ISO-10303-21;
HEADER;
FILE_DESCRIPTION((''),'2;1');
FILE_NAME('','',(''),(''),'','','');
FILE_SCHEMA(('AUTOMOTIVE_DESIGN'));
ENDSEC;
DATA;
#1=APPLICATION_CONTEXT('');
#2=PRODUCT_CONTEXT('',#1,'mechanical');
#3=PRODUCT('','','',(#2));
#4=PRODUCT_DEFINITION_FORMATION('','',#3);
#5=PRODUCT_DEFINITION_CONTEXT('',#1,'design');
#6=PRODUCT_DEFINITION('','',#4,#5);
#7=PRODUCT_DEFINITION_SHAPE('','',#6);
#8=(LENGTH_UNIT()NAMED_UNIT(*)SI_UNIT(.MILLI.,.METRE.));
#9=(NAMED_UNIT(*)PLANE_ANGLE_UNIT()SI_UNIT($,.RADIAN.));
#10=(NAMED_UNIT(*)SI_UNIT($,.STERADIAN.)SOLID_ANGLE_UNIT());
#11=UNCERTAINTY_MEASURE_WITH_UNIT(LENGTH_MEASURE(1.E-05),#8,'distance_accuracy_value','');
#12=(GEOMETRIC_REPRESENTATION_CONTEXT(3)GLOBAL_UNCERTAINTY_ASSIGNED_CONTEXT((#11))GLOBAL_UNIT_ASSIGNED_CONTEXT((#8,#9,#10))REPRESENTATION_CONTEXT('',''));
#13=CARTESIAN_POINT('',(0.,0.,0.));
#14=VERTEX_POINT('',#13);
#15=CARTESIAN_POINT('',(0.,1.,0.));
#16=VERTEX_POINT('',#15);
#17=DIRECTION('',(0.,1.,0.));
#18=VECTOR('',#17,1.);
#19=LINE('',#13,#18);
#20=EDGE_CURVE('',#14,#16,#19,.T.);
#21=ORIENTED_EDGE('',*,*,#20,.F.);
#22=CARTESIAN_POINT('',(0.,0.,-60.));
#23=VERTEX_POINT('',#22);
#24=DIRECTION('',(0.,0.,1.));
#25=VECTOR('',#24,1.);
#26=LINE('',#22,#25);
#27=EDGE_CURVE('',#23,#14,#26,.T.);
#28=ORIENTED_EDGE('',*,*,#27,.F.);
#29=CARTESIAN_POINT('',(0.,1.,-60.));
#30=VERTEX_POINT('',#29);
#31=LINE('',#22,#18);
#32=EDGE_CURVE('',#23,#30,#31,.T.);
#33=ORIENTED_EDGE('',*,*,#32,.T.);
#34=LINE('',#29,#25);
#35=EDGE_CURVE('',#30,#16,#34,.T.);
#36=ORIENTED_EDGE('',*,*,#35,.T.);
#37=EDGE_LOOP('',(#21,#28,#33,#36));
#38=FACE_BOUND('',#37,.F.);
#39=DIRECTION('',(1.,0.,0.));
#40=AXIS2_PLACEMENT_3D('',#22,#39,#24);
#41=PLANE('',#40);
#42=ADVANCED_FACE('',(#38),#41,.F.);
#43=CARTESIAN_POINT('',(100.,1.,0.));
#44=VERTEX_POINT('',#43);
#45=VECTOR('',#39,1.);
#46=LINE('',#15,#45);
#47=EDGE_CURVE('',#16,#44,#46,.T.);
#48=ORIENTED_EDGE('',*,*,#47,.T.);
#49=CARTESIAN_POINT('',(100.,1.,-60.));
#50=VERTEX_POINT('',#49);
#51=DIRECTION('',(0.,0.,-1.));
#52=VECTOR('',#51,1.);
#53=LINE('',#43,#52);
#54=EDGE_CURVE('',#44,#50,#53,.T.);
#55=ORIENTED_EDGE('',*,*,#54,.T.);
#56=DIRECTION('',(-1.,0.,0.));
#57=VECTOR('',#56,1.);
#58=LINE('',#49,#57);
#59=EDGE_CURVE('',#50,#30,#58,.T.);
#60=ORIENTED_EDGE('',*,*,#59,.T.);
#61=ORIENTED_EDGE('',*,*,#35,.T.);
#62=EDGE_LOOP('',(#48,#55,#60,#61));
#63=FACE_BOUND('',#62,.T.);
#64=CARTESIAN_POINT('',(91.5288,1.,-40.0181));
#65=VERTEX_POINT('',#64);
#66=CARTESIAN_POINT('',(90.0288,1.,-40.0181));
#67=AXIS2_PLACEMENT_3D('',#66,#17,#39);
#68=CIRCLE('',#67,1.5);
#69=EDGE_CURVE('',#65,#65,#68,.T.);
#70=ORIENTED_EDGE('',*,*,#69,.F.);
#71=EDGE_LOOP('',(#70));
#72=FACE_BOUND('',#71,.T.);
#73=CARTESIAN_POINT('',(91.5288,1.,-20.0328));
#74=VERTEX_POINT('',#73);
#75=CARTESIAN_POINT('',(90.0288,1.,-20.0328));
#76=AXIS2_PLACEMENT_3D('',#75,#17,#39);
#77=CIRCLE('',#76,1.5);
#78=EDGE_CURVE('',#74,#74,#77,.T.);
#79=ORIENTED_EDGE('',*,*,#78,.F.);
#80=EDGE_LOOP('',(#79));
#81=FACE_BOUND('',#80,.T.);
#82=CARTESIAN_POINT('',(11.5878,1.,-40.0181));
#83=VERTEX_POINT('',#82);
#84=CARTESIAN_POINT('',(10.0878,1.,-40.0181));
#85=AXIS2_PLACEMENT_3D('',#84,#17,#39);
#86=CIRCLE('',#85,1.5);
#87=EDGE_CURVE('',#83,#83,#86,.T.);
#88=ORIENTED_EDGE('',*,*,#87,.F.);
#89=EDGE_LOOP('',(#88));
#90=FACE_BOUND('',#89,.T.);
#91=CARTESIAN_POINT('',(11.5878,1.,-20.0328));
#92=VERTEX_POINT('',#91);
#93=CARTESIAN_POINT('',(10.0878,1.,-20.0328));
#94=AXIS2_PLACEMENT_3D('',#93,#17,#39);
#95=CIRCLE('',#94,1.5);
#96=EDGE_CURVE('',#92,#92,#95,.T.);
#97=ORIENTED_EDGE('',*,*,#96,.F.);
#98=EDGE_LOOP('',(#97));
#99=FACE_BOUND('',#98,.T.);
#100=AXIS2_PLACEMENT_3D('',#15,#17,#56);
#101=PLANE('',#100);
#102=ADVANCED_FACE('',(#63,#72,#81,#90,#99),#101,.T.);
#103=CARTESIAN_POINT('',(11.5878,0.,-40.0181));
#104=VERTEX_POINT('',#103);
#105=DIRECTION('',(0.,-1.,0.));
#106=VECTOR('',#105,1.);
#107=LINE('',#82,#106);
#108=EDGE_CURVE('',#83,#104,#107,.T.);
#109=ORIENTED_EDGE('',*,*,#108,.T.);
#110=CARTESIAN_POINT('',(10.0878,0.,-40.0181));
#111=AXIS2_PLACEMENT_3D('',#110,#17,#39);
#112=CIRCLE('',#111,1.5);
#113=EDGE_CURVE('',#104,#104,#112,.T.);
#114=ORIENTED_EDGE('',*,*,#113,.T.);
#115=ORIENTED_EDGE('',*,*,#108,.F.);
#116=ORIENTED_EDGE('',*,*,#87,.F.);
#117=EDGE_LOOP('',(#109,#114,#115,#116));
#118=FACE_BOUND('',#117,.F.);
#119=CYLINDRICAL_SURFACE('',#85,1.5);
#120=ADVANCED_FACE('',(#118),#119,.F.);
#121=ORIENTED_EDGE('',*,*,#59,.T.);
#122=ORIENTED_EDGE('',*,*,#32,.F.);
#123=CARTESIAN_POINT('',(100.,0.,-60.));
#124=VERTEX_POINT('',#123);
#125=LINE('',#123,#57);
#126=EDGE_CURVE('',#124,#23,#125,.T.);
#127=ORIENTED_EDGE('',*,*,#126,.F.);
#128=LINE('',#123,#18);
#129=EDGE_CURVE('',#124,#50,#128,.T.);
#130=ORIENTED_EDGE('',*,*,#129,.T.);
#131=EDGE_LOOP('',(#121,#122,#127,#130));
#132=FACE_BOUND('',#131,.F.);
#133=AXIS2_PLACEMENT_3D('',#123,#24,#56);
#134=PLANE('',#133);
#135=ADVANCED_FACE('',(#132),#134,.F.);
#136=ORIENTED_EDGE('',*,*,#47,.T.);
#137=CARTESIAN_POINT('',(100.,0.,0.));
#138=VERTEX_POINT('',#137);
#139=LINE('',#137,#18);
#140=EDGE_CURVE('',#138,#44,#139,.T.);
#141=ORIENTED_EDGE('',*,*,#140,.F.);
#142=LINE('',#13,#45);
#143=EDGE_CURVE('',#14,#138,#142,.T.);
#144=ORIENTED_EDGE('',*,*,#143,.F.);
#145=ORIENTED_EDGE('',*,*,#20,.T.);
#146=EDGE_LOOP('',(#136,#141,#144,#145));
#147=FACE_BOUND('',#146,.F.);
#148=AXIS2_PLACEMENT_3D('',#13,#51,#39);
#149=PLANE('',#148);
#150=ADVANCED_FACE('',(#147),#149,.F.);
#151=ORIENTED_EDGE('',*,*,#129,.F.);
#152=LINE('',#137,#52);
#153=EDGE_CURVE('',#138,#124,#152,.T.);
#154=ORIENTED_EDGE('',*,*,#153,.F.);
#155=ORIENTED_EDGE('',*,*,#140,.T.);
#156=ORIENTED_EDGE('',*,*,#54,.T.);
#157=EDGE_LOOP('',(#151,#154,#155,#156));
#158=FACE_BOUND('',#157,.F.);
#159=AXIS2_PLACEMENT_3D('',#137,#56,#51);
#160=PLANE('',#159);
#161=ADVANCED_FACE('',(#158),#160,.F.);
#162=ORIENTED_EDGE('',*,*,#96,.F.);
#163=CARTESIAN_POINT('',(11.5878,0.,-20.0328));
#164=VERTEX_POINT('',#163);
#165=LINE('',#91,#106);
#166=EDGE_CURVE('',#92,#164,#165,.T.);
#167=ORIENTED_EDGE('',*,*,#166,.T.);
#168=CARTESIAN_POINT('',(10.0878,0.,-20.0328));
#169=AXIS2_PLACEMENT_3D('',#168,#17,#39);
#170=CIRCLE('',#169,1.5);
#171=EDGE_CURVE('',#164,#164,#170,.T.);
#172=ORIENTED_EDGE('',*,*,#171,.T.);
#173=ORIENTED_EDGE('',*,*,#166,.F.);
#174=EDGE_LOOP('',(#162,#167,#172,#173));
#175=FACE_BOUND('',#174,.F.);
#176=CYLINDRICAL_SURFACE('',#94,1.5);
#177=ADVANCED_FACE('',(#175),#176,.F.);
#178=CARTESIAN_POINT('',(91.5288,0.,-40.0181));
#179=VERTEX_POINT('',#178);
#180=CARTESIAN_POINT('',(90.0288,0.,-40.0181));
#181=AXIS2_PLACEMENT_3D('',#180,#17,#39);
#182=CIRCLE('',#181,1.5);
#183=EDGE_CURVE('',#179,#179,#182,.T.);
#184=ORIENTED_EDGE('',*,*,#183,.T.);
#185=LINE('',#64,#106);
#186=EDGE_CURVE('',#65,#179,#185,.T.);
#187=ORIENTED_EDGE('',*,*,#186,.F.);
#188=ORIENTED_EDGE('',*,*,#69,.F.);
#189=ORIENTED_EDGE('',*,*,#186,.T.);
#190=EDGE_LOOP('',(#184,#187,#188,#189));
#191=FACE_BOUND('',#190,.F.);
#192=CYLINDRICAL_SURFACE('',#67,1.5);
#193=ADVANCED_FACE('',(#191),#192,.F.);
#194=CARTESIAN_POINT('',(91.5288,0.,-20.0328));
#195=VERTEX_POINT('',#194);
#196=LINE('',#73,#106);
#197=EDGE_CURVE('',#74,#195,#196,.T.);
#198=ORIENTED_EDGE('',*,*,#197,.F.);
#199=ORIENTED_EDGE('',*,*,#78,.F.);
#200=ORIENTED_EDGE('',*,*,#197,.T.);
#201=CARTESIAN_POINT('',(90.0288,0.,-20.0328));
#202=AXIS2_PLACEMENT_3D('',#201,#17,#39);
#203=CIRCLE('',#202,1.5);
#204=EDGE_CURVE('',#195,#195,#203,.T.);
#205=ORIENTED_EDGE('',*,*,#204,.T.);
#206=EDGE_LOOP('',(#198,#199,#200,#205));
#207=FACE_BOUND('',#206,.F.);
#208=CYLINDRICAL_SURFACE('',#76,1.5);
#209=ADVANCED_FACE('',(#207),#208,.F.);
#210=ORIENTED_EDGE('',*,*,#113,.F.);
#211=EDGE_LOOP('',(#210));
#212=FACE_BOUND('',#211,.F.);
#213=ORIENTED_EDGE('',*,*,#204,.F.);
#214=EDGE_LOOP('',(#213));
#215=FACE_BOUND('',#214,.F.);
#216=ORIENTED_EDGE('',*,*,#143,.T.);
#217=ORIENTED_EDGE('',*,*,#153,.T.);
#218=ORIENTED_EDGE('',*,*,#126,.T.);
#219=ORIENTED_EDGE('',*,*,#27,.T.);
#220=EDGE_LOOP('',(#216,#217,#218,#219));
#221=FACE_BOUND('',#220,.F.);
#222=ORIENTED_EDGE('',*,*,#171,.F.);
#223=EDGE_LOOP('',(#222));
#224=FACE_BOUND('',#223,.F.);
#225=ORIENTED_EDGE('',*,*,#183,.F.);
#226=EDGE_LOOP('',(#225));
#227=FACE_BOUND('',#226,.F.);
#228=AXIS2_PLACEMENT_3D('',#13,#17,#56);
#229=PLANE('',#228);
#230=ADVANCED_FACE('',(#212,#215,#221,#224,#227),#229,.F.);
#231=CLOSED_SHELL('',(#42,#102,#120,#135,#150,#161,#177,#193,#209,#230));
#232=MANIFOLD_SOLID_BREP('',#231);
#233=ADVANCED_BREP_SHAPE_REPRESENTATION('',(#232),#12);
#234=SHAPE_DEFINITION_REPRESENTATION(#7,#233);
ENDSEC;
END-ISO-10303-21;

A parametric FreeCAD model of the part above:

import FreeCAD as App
import Part
import Sketcher
Q = App.Units.Quantity

doc = App.newDocument("Part")
params = doc.addObject("Spreadsheet::Sheet", "Params")
for row, (alias, value) in enumerate([
    ("sketch1_width", "100 mm"),
    ("sketch1_height", "60 mm"),
    ("pad1_length", "1 mm"),
    ("sketch2_diameter", "3 mm"),
    ("pocket1_length", "1 mm"),
    ("sketch3_diameter", "3 mm"),
    ("pocket2_length", "1 mm"),
], start=1):
    params.set(f"A{row}", alias)
    params.set(f"B{row}", "=" + value)
    params.setAlias(f"B{row}", alias)

body = doc.addObject("PartDesign::Body", "Body")

# Sketch on XZ plane
sketch1 = doc.addObject("Sketcher::SketchObject", "Sketch")
body.addObject(sketch1)
sketch1.AttachmentSupport = (doc.XZ_Plane, [""])
sketch1.MapMode = "FlatFace"
sketch1.addGeometry([
    Part.LineSegment(App.Vector(0, -60, 0), App.Vector(0, 0, 0)),
    Part.LineSegment(App.Vector(0, 0, 0), App.Vector(100, 0, 0)),
    Part.LineSegment(App.Vector(100, 0, 0), App.Vector(100, -60, 0)),
    Part.LineSegment(App.Vector(100, -60, 0), App.Vector(0, -60, 0)),
], False)
sketch1.addConstraint([
    Sketcher.Constraint("Coincident", 0, 2, 1, 1),
    Sketcher.Constraint("Coincident", 1, 2, 2, 1),
    Sketcher.Constraint("Coincident", 2, 2, 3, 1),
    Sketcher.Constraint("Coincident", 3, 2, 0, 1),
    Sketcher.Constraint("Vertical", 0),
    Sketcher.Constraint("Horizontal", 1),
    Sketcher.Constraint("Vertical", 2),
    Sketcher.Constraint("Horizontal", 3),
    Sketcher.Constraint("Coincident", 0, 2, -1, 1),
    Sketcher.Constraint("DistanceX", 1, 1, 1, 2, Q("100 mm")),
    Sketcher.Constraint("DistanceY", 0, 1, 0, 2, Q("60 mm")),
])
sketch1.setExpression("Constraints[9]", "Params.sketch1_width")
sketch1.setExpression("Constraints[10]", "Params.sketch1_height")
pad1 = doc.addObject("PartDesign::Pad", "Pad")
body.addObject(pad1)
pad1.Profile = sketch1
pad1.setExpression("Length", "Params.pad1_length")
pad1.Reversed = True

# Sketch on XZ plane
sketch2 = doc.addObject("Sketcher::SketchObject", "Sketch001")
body.addObject(sketch2)
sketch2.AttachmentSupport = (doc.XZ_Plane, [""])
sketch2.MapMode = "FlatFace"
sketch2.AttachmentOffset = App.Placement(App.Vector(0, 0, -1), App.Rotation())
sketch2.addGeometry([
    Part.Circle(App.Vector(10.1, -20, 0), App.Vector(0, 0, 1), 1.5),
    Part.Circle(App.Vector(10.1, -40, 0), App.Vector(0, 0, 1), 1.5),
], False)
sketch2.addConstraint([
    Sketcher.Constraint("Equal", 0, 1),
    Sketcher.Constraint("Vertical", 0, 3, 1, 3),
    Sketcher.Constraint("Diameter", 0, Q("3 mm")),
    Sketcher.Constraint("DistanceY", 1, 3, -1, 1, Q("40.018 mm")),
    Sketcher.Constraint("DistanceX", -1, 1, 0, 3, Q("10.0878 mm")),
    Sketcher.Constraint("DistanceY", 0, 3, -1, 1, Q("20.0328 mm")),
])
sketch2.setExpression("Constraints[2]", "Params.sketch2_diameter")
pocket1 = doc.addObject("PartDesign::Pocket", "Pocket")
body.addObject(pocket1)
pocket1.Profile = sketch2
pocket1.setExpression("Length", "Params.pocket1_length")
pocket1.Reversed = True

# Sketch on XZ plane
sketch3 = doc.addObject("Sketcher::SketchObject", "Sketch002")
body.addObject(sketch3)
sketch3.AttachmentSupport = (doc.XZ_Plane, [""])
sketch3.MapMode = "FlatFace"
sketch3.AttachmentOffset = App.Placement(App.Vector(0, 0, -1), App.Rotation())
sketch3.addGeometry([
    Part.Circle(App.Vector(90, -20, 0), App.Vector(0, 0, 1), 1.5),
    Part.Circle(App.Vector(90, -40, 0), App.Vector(0, 0, 1), 1.5),
], False)
sketch3.addConstraint([
    Sketcher.Constraint("Equal", 0, 1),
    Sketcher.Constraint("Vertical", 0, 3, 1, 3),
    Sketcher.Constraint("Diameter", 0, Q("3 mm")),
    Sketcher.Constraint("DistanceY", 1, 3, -1, 1, Q("40.018 mm")),
    Sketcher.Constraint("DistanceX", -1, 1, 0, 3, Q("90.0288 mm")),
    Sketcher.Constraint("DistanceY", 0, 3, -1, 1, Q("20.0328 mm")),
])
sketch3.setExpression("Constraints[2]", "Params.sketch3_diameter")
pocket2 = doc.addObject("PartDesign::Pocket", "Pocket001")
body.addObject(pocket2)
pocket2.Profile = sketch3
pocket2.setExpression("Length", "Params.pocket2_length")
pocket2.Reversed = True

doc.recompute()
